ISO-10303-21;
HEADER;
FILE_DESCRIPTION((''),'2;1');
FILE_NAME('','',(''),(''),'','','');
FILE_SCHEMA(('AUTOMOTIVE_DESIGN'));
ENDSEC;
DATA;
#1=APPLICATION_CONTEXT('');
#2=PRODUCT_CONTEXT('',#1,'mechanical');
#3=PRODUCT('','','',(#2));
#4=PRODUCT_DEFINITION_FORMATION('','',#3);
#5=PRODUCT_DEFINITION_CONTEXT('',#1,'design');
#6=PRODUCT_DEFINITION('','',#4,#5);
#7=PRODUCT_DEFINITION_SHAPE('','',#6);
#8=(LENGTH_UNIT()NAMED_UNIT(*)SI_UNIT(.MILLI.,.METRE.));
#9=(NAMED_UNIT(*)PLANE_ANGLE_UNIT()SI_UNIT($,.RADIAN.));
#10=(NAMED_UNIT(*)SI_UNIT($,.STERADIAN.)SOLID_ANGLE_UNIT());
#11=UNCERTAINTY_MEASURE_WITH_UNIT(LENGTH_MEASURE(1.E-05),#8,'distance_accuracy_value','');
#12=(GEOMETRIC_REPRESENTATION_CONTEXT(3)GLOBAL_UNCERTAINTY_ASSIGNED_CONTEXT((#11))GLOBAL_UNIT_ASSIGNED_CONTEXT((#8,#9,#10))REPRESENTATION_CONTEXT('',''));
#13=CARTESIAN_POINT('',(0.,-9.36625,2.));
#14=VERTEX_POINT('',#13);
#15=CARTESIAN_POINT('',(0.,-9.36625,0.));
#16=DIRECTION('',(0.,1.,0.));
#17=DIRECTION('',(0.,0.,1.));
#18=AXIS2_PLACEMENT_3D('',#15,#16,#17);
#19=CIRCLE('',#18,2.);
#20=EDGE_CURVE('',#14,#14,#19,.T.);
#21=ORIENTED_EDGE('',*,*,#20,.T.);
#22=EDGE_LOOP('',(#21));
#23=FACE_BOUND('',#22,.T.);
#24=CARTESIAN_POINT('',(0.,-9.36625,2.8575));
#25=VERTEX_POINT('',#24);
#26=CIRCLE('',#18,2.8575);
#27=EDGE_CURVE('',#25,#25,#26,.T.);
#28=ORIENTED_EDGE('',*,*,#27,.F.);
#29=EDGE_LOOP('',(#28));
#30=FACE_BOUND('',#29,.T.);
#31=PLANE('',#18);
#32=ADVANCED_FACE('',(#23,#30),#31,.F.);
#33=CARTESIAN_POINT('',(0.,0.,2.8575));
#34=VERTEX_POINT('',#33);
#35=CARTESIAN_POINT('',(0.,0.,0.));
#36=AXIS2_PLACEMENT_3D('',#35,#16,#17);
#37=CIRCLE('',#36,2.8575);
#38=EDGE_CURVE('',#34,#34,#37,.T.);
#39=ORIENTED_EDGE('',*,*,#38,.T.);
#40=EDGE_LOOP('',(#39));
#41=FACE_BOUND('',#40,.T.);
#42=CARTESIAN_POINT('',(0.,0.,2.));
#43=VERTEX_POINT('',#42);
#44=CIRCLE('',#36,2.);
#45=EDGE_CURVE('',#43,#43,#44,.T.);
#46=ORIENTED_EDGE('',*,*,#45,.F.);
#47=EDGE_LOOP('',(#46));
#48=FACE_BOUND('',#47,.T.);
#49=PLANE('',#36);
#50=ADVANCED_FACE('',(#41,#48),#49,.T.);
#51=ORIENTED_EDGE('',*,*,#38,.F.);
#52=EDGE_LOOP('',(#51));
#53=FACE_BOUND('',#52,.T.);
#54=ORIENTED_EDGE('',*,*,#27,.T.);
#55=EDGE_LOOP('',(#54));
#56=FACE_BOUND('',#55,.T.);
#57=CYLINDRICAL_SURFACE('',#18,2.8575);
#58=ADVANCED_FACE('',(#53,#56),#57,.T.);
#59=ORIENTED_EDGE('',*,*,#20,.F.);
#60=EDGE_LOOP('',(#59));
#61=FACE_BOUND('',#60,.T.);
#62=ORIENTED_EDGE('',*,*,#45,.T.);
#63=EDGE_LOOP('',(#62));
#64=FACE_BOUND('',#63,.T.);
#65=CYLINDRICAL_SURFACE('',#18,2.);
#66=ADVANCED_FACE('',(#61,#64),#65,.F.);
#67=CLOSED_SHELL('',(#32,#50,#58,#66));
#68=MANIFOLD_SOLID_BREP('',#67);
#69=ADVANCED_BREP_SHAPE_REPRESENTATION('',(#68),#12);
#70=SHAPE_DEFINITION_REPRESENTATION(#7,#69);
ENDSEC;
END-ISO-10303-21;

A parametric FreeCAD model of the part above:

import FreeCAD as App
import Part
import Sketcher
from FreeCAD import Vector

doc = App.newDocument("Part")
body = doc.addObject("PartDesign::Body", "Body")

sketch1 = doc.addObject("Sketcher::SketchObject", "Sketch")
body.addObject(sketch1)
sketch1.AttachmentSupport = (doc.XZ_Plane, [""])
sketch1.MapMode = "FlatFace"
sketch1.addGeometry([
    Part.Circle(Vector(0, 0, 0), Vector(0, 0, 1), 2.9),
    Part.Circle(Vector(0, 0, 0), Vector(0, 0, 1), 2),
], False)
sketch1.addConstraint([
    Sketcher.Constraint("Coincident", 0, 3, -1, 1),
    Sketcher.Constraint("Coincident", 1, 3, -1, 1),
    Sketcher.Constraint("Diameter", 1, 4.0),
    Sketcher.Constraint("Diameter", 0, 5.715),
])
pad1 = doc.addObject("PartDesign::Pad", "Pad")
body.addObject(pad1)
pad1.Profile = sketch1
pad1.Length = 9.36625

doc.recompute()
